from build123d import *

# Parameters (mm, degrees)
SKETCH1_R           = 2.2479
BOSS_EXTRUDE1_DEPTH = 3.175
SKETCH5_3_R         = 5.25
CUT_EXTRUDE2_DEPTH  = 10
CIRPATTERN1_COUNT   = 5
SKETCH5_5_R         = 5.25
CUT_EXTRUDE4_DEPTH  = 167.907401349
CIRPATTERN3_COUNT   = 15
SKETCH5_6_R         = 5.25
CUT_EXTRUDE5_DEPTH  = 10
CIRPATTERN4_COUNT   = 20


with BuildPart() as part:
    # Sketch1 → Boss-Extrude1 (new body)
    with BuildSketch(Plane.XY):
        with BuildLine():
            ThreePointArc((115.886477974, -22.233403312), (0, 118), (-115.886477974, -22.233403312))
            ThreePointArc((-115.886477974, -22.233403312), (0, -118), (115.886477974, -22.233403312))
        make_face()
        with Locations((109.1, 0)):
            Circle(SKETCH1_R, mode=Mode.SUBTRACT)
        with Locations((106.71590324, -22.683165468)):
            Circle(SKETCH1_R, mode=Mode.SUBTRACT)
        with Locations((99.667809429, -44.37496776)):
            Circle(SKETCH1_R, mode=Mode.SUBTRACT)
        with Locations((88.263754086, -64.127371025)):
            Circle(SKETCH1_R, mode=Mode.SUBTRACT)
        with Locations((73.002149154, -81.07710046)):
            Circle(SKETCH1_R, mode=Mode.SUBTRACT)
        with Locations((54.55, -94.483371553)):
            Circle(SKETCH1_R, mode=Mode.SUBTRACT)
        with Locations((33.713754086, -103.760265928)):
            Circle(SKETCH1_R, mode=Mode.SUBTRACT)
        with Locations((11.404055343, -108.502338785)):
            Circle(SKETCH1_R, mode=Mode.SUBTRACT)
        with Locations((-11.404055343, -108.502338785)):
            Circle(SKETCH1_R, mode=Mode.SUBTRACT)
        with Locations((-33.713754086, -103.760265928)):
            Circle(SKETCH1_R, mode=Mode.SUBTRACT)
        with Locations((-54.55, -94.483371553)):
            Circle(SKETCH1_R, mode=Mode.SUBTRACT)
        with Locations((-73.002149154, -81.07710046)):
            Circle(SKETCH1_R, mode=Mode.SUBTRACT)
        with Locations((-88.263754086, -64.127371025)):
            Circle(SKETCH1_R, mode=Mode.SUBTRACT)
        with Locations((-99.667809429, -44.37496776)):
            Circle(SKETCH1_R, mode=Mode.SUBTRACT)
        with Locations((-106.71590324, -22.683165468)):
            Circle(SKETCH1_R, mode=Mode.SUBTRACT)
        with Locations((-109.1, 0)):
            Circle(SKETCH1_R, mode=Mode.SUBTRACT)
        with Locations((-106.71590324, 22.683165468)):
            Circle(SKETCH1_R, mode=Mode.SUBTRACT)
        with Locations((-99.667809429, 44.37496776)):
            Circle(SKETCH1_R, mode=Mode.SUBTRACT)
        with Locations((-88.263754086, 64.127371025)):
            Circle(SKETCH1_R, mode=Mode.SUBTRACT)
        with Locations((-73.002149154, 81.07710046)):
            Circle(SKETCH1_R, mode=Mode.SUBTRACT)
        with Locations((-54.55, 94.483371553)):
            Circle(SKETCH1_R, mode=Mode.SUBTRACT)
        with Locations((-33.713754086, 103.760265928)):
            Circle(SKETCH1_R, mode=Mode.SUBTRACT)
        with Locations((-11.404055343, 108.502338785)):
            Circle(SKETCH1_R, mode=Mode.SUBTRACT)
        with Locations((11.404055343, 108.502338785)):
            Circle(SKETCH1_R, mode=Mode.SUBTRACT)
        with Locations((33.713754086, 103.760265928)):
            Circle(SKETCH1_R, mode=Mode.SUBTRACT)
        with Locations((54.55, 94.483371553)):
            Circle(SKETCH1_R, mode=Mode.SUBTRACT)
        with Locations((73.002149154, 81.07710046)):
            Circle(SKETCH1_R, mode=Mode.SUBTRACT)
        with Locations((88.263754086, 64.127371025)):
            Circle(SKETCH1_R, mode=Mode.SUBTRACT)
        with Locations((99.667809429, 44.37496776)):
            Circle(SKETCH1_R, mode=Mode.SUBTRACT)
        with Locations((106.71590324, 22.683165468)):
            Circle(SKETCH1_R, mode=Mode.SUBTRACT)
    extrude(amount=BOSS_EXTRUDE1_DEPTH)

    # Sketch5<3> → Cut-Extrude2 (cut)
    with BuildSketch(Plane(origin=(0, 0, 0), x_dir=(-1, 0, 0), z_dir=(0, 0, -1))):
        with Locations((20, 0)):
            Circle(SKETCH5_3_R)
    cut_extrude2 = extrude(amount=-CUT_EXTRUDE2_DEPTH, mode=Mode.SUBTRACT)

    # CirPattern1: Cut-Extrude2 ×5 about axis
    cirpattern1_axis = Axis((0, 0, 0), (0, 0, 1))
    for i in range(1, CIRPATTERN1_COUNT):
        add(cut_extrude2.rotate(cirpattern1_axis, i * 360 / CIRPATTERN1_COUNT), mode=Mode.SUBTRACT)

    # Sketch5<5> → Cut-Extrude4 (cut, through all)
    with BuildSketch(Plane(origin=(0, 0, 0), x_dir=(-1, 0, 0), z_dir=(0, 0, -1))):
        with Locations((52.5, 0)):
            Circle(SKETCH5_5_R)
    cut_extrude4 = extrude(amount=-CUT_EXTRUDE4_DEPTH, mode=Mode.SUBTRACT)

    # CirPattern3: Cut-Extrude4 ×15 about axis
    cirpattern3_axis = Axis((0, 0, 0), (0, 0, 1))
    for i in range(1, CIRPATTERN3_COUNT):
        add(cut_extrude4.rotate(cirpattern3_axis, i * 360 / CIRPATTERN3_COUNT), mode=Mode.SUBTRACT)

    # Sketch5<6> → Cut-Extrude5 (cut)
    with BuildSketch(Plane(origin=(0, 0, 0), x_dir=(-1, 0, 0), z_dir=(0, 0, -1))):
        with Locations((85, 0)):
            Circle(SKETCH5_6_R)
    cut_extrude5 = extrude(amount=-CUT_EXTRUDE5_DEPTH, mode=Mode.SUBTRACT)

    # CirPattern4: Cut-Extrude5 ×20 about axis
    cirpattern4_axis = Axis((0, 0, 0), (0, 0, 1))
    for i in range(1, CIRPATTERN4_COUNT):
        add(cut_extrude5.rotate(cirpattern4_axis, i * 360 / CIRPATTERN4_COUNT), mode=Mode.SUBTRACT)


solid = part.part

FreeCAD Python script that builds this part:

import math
import FreeCAD as App
import Part
import Sketcher

doc = App.newDocument("Part")
params = doc.addObject("Spreadsheet::Sheet", "Params")
for row, (alias, value) in enumerate([
    ("sketch1_radius", "118 mm"),
    ("pad1_length", "3.175 mm"),
    ("sketch2_diameter", "10.5 mm"),
    ("pocket1_length", "10 mm"),
    ("sketch3_diameter", "10.5 mm"),
    ("sketch4_diameter", "10.5 mm"),
    ("pocket3_length", "10 mm"),
], start=1):
    params.set(f"A{row}", alias)
    params.set(f"B{row}", "=" + value)
    params.setAlias(f"B{row}", alias)

body = doc.addObject("PartDesign::Body", "Body")

sketch1 = body.newObject("Sketcher::SketchObject", "Sketch")
sketch1.AttachmentSupport = (doc.getObject("XY_Plane"), [""])
sketch1.MapMode = "FlatFace"
sketch1.addGeometry(Part.ArcOfCircle(Part.Circle(App.Vector(0, 0, 0), App.Vector(0, 0, 1), 118), math.radians(-10.860514), math.radians(190.860514)), False)
sketch1.addGeometry(Part.ArcOfCircle(Part.Circle(App.Vector(0, 0, 0), App.Vector(0, 0, 1), 118), math.radians(-169.139486), math.radians(-10.860514)), False)
sketch1.addGeometry(Part.Circle(App.Vector(-88.263754, -64.127371, 0), App.Vector(0, 0, 1), 2.2479), False)
sketch1.addGeometry(Part.Circle(App.Vector(-73.002149, -81.0771, 0), App.Vector(0, 0, 1), 2.2479), False)
sketch1.addGeometry(Part.Circle(App.Vector(-33.713754, -103.760266, 0), App.Vector(0, 0, 1), 2.2479), False)
sketch1.addGeometry(Part.Circle(App.Vector(-54.55, -94.483372, 0), App.Vector(0, 0, 1), 2.2479), False)
sketch1.addGeometry(Part.Circle(App.Vector(-11.404055, -108.502339, 0), App.Vector(0, 0, 1), 2.2479), False)
sketch1.addGeometry(Part.Circle(App.Vector(-99.667809, -44.374968, 0), App.Vector(0, 0, 1), 2.2479), False)
sketch1.addGeometry(Part.Circle(App.Vector(-106.715903, -22.683165, 0), App.Vector(0, 0, 1), 2.2479), False)
sketch1.addGeometry(Part.Circle(App.Vector(11.404055, -108.502339, 0), App.Vector(0, 0, 1), 2.2479), False)
sketch1.addGeometry(Part.Circle(App.Vector(33.713754, -103.760266, 0), App.Vector(0, 0, 1), 2.2479), False)
sketch1.addGeometry(Part.Circle(App.Vector(54.55, -94.483372, 0), App.Vector(0, 0, 1), 2.2479), False)
sketch1.addGeometry(Part.Circle(App.Vector(73.002149, -81.0771, 0), App.Vector(0, 0, 1), 2.2479), False)
sketch1.addGeometry(Part.Circle(App.Vector(88.263754, -64.127371, 0), App.Vector(0, 0, 1), 2.2479), False)
sketch1.addGeometry(Part.Circle(App.Vector(99.667809, -44.374968, 0), App.Vector(0, 0, 1), 2.2479), False)
sketch1.addGeometry(Part.Circle(App.Vector(106.715903, -22.683165, 0), App.Vector(0, 0, 1), 2.2479), False)
sketch1.addGeometry(Part.Circle(App.Vector(-109.1, 0, 0), App.Vector(0, 0, 1), 2.2479), False)
sketch1.addGeometry(Part.Circle(App.Vector(-106.715903, 22.683165, 0), App.Vector(0, 0, 1), 2.2479), False)
sketch1.addGeometry(Part.Circle(App.Vector(-99.667809, 44.374968, 0), App.Vector(0, 0, 1), 2.2479), False)
sketch1.addGeometry(Part.Circle(App.Vector(-88.263754, 64.127371, 0), App.Vector(0, 0, 1), 2.2479), False)
sketch1.addGeometry(Part.Circle(App.Vector(-73.002149, 81.0771, 0), App.Vector(0, 0, 1), 2.2479), False)
sketch1.addGeometry(Part.Circle(App.Vector(-54.55, 94.483372, 0), App.Vector(0, 0, 1), 2.2479), False)
sketch1.addGeometry(Part.Circle(App.Vector(-33.713754, 103.760266, 0), App.Vector(0, 0, 1), 2.2479), False)
sketch1.addGeometry(Part.Circle(App.Vector(-11.404055, 108.502339, 0), App.Vector(0, 0, 1), 2.2479), False)
sketch1.addGeometry(Part.Circle(App.Vector(109.1, 0, 0), App.Vector(0, 0, 1), 2.2479), False)
sketch1.addGeometry(Part.Circle(App.Vector(106.715903, 22.683165, 0), App.Vector(0, 0, 1), 2.2479), False)
sketch1.addGeometry(Part.Circle(App.Vector(99.667809, 44.374968, 0), App.Vector(0, 0, 1), 2.2479), False)
sketch1.addGeometry(Part.Circle(App.Vector(11.404055, 108.502339, 0), App.Vector(0, 0, 1), 2.2479), False)
sketch1.addGeometry(Part.Circle(App.Vector(54.55, 94.483372, 0), App.Vector(0, 0, 1), 2.2479), False)
sketch1.addGeometry(Part.Circle(App.Vector(33.713754, 103.760266, 0), App.Vector(0, 0, 1), 2.2479), False)
sketch1.addGeometry(Part.Circle(App.Vector(73.002149, 81.0771, 0), App.Vector(0, 0, 1), 2.2479), False)
sketch1.addGeometry(Part.Circle(App.Vector(88.263754, 64.127371, 0), App.Vector(0, 0, 1), 2.2479), False)
sketch1.addConstraint(Sketcher.Constraint("Tangent", 0, 1, 1, 2))
sketch1.addConstraint(Sketcher.Constraint("Coincident", 1, 1, 0, 2))
sketch1.addConstraint(Sketcher.Constraint("Coincident", 0, 3, -1, 1))
sketch1.addConstraint(Sketcher.Constraint("Equal", 2, 3))
sketch1.addConstraint(Sketcher.Constraint("Equal", 3, 4))
sketch1.addConstraint(Sketcher.Constraint("Equal", 4, 5))
sketch1.addConstraint(Sketcher.Constraint("Equal", 5, 6))
sketch1.addConstraint(Sketcher.Constraint("Equal", 6, 7))
sketch1.addConstraint(Sketcher.Constraint("Equal", 7, 8))
sketch1.addConstraint(Sketcher.Constraint("Equal", 8, 9))
sketch1.addConstraint(Sketcher.Constraint("Equal", 9, 10))
sketch1.addConstraint(Sketcher.Constraint("Equal", 10, 11))
sketch1.addConstraint(Sketcher.Constraint("Equal", 11, 12))
sketch1.addConstraint(Sketcher.Constraint("Equal", 12, 13))
sketch1.addConstraint(Sketcher.Constraint("Equal", 13, 14))
sketch1.addConstraint(Sketcher.Constraint("Equal", 14, 15))
sketch1.addConstraint(Sketcher.Constraint("Equal", 15, 16))
sketch1.addConstraint(Sketcher.Constraint("Equal", 16, 17))
sketch1.addConstraint(Sketcher.Constraint("Equal", 17, 18))
sketch1.addConstraint(Sketcher.Constraint("Equal", 18, 19))
sketch1.addConstraint(Sketcher.Constraint("Equal", 19, 20))
sketch1.addConstraint(Sketcher.Constraint("Equal", 20, 21))
sketch1.addConstraint(Sketcher.Constraint("Equal", 21, 22))
sketch1.addConstraint(Sketcher.Constraint("Equal", 22, 23))
sketch1.addConstraint(Sketcher.Constraint("Equal", 23, 24))
sketch1.addConstraint(Sketcher.Constraint("Equal", 24, 25))
sketch1.addConstraint(Sketcher.Constraint("Equal", 25, 26))
sketch1.addConstraint(Sketcher.Constraint("Equal", 26, 27))
sketch1.addConstraint(Sketcher.Constraint("Equal", 27, 28))
sketch1.addConstraint(Sketcher.Constraint("Equal", 28, 29))
sketch1.addConstraint(Sketcher.Constraint("Equal", 29, 30))
sketch1.addConstraint(Sketcher.Constraint("Equal", 30, 31))
sketch1.addConstraint(Sketcher.Constraint("Symmetric", 15, 3, 17, 3, -1, 1))
sketch1.addConstraint(Sketcher.Constraint("Symmetric", 14, 3, 18, 3, -1, 1))
sketch1.addConstraint(Sketcher.Constraint("Symmetric", 13, 3, 19, 3, -1, 1))
sketch1.addConstraint(Sketcher.Constraint("Symmetric", 12, 3, 20, 3, -1, 1))
sketch1.addConstraint(Sketcher.Constraint("Symmetric", 11, 3, 21, 3, -1, 1))
sketch1.addConstraint(Sketcher.Constraint("Symmetric", 10, 3, 22, 3, -1, 1))
sketch1.addConstraint(Sketcher.Constraint("Symmetric", 9, 3, 23, 3, -1, 1))
sketch1.addConstraint(Sketcher.Constraint("Symmetric", 16, 3, 24, 3, -1, 1))
sketch1.addConstraint(Sketcher.Constraint("Symmetric", 8, 3, 25, 3, -1, 1))
sketch1.addConstraint(Sketcher.Constraint("Symmetric", 7, 3, 26, 3, -1, 1))
sketch1.addConstraint(Sketcher.Constraint("Symmetric", 6, 3, 27, 3, -1, 1))
sketch1.addConstraint(Sketcher.Constraint("Symmetric", 5, 3, 28, 3, -1, 1))
sketch1.addConstraint(Sketcher.Constraint("Symmetric", 4, 3, 29, 3, -1, 1))
sketch1.addConstraint(Sketcher.Constraint("Symmetric", 3, 3, 30, 3, -1, 1))
sketch1.addConstraint(Sketcher.Constraint("Symmetric", 2, 3, 31, 3, -1, 1))
sketch1.addConstraint(Sketcher.Constraint("Symmetric", 6, 3, 9, 3, -2))
sketch1.addConstraint(Sketcher.Constraint("Symmetric", 4, 3, 10, 3, -2))
sketch1.addConstraint(Sketcher.Constraint("Symmetric", 5, 3, 11, 3, -2))
sketch1.addConstraint(Sketcher.Constraint("Symmetric", 3, 3, 12, 3, -2))
sketch1.addConstraint(Sketcher.Constraint("Symmetric", 2, 3, 13, 3, -2))
sketch1.addConstraint(Sketcher.Constraint("Symmetric", 7, 3, 14, 3, -2))
sketch1.addConstraint(Sketcher.Constraint("Symmetric", 8, 3, 15, 3, -2))
sketch1.addConstraint(Sketcher.Constraint("PointOnObject", 16, 3, -1))
sketch1.addConstraint(Sketcher.Constraint("Horizontal", 0, 1, 1, 1))
sketch1.addConstraint(Sketcher.Constraint("Radius", 0, 118.0))
sketch1.addConstraint(Sketcher.Constraint("Diameter", 2, 4.4958))
sketch1.addConstraint(Sketcher.Constraint("DistanceX", 16, 3, -1, 1, 109.1))
sketch1.addConstraint(Sketcher.Constraint("DistanceX", 5, 3, 11, 3, 109.1))
sketch1.addConstraint(Sketcher.Constraint("DistanceX", 2, 3, 4, 3, 54.55))
sketch1.addConstraint(Sketcher.Constraint("DistanceY", 5, 3, 2, 3, 30.356001))
sketch1.addConstraint(Sketcher.Constraint("DistanceY", 3, 3, -1, 1, 81.0771))
sketch1.addConstraint(Sketcher.Constraint("DistanceX", 4, 3, 6, 3, 22.309699))
sketch1.addConstraint(Sketcher.Constraint("DistanceY", 4, 3, 7, 3, 59.385298))
sketch1.addConstraint(Sketcher.Constraint("DistanceY", 2, 3, -1, 1, 64.127371))
sketch1.addConstraint(Sketcher.Constraint("DistanceX", 3, 3, -1, 1, 73.002149))
sketch1.addConstraint(Sketcher.Constraint("DistanceY", 6, 3, -1, 1, 108.502339))
sketch1.addConstraint(Sketcher.Constraint("DistanceX", 7, 3, -1, 1, 99.667809))
sketch1.addConstraint(Sketcher.Constraint("DistanceY", 6, 3, 7, 3, 64.127371))
sketch1.addConstraint(Sketcher.Constraint("DistanceX", 8, 3, 2, 3, 18.452149))
sketch1.addConstraint(Sketcher.Constraint("DistanceX", 6, 3, 9, 3, 22.808111))
sketch1.addConstraint(Sketcher.Constraint("DistanceY", 8, 3, 17, 3, 45.366331))
sketch1.addConstraint(Sketcher.Constraint("DistanceX", 14, 3, 0, 1, 16.218669))
sketch1.setExpression("Constraints[56]", "Params.sketch1_radius")
pad1 = body.newObject("PartDesign::Pad", "Pad")
pad1.Profile = sketch1
pad1.setExpression("Length", "Params.pad1_length")

sketch2 = body.newObject("Sketcher::SketchObject", "Sketch001")
sketch2.AttachmentSupport = (doc.getObject("XY_Plane"), [""])
sketch2.MapMode = "FlatFace"
sketch2.addGeometry(Part.Circle(App.Vector(-20, 0, 0), App.Vector(0, 0, 1), 5.25), False)
sketch2.addConstraint(Sketcher.Constraint("PointOnObject", 0, 3, -1))
sketch2.addConstraint(Sketcher.Constraint("Diameter", 0, 10.5))
sketch2.addConstraint(Sketcher.Constraint("DistanceX", 0, 3, -1, 1, 20.0))
sketch2.setExpression("Constraints[1]", "Params.sketch2_diameter")
pocket1 = body.newObject("PartDesign::Pocket", "Pocket")
pocket1.Profile = sketch2
pocket1.setExpression("Length", "Params.pocket1_length")
pocket1.Reversed = True
doc.recompute()

polarpattern = body.newObject("PartDesign::PolarPattern", "PolarPattern")
polarpattern.Originals = [pocket1]
polarpattern.Axis = (doc.getObject("Z_Axis"), [""])
polarpattern.Angle = 360
polarpattern.Occurrences = 5
body.Tip = polarpattern

sketch3 = body.newObject("Sketcher::SketchObject", "Sketch002")
sketch3.AttachmentSupport = (doc.getObject("XY_Plane"), [""])
sketch3.MapMode = "FlatFace"
sketch3.addGeometry(Part.Circle(App.Vector(-52.5, 0, 0), App.Vector(0, 0, 1), 5.25), False)
sketch3.addConstraint(Sketcher.Constraint("PointOnObject", 0, 3, -1))
sketch3.addConstraint(Sketcher.Constraint("Diameter", 0, 10.5))
sketch3.addConstraint(Sketcher.Constraint("DistanceX", 0, 3, -1, 1, 52.5))
sketch3.setExpression("Constraints[1]", "Params.sketch3_diameter")
pocket2 = body.newObject("PartDesign::Pocket", "Pocket001")
pocket2.Profile = sketch3
pocket2.Type = "ThroughAll"
pocket2.Reversed = True
doc.recompute()

polarpattern2 = body.newObject("PartDesign::PolarPattern", "PolarPattern001")
polarpattern2.Originals = [pocket2]
polarpattern2.Axis = (doc.getObject("Z_Axis"), [""])
polarpattern2.Angle = 360
polarpattern2.Occurrences = 15
body.Tip = polarpattern2

sketch4 = body.newObject("Sketcher::SketchObject", "Sketch003")
sketch4.AttachmentSupport = (doc.getObject("XY_Plane"), [""])
sketch4.MapMode = "FlatFace"
sketch4.addGeometry(Part.Circle(App.Vector(-85, 0, 0), App.Vector(0, 0, 1), 5.25), False)
sketch4.addConstraint(Sketcher.Constraint("PointOnObject", 0, 3, -1))
sketch4.addConstraint(Sketcher.Constraint("Diameter", 0, 10.5))
sketch4.addConstraint(Sketcher.Constraint("DistanceX", 0, 3, -1, 1, 85.0))
sketch4.setExpression("Constraints[1]", "Params.sketch4_diameter")
pocket3 = body.newObject("PartDesign::Pocket", "Pocket002")
pocket3.Profile = sketch4
pocket3.setExpression("Length", "Params.pocket3_length")
pocket3.Reversed = True
doc.recompute()

polarpattern3 = body.newObject("PartDesign::PolarPattern", "PolarPattern002")
polarpattern3.Originals = [pocket3]
polarpattern3.Axis = (doc.getObject("Z_Axis"), [""])
polarpattern3.Angle = 360
polarpattern3.Occurrences = 20
body.Tip = polarpattern3

doc.recompute()
